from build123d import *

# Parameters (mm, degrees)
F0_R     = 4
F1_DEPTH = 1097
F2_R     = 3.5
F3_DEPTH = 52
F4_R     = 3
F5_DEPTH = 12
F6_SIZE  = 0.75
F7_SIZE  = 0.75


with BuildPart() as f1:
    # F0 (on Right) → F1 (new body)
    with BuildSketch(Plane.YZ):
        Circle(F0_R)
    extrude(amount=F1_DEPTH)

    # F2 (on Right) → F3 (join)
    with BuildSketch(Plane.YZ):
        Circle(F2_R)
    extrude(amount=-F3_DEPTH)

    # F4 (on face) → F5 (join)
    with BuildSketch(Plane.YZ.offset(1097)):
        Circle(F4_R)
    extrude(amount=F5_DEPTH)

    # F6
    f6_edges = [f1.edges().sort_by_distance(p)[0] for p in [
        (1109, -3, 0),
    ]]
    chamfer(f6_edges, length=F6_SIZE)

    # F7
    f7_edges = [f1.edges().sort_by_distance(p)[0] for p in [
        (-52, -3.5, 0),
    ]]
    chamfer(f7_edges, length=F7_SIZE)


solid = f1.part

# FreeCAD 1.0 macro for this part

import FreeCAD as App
import Part
import Sketcher

V = App.Vector
Q = App.Units.Quantity


def edges_at(feature, points):
    """Names of the edges that pass closest to the given points."""
    edges = feature.Shape.Edges
    near = lambda p: min(range(len(edges)), key=lambda i: edges[i].distToShape(Part.Vertex(*p))[0])
    return sorted({f"Edge{near(p) + 1}" for p in points})

doc = App.newDocument("Part")
params = doc.addObject("Spreadsheet::Sheet", "Params")
for row, (alias, value) in enumerate([
    ("sketch1_diameter", "8 mm"),
    ("pad1_length", "1097 mm"),
    ("sketch2_diameter", "7 mm"),
    ("pad2_length", "52 mm"),
    ("sketch3_diameter", "6 mm"),
    ("pad3_length", "12 mm"),
    ("chamfer_size", "0.75 mm"),
    ("chamfer2_size", "0.75 mm"),
], start=1):
    params.set(f"A{row}", alias)
    params.set(f"B{row}", "=" + value)
    params.setAlias(f"B{row}", alias)

body = doc.addObject("PartDesign::Body", "Body")

# Sketch on YZ plane
sketch1 = doc.addObject("Sketcher::SketchObject", "Sketch")
body.addObject(sketch1)
sketch1.AttachmentSupport = (doc.YZ_Plane, [""])
sketch1.MapMode = "FlatFace"
sketch1.addGeometry(Part.Circle(V(0, 0, 0), V(0, 0, 1), 4), False)
sketch1.addConstraint([
    Sketcher.Constraint("Coincident", 0, 3, -1, 1),
    Sketcher.Constraint("Diameter", 0, Q("8 mm")),
])
sketch1.setExpression("Constraints[1]", "Params.sketch1_diameter")
pad1 = doc.addObject("PartDesign::Pad", "Pad")
body.addObject(pad1)
pad1.Profile = sketch1
pad1.setExpression("Length", "Params.pad1_length")

# Sketch on YZ plane
sketch2 = doc.addObject("Sketcher::SketchObject", "Sketch001")
body.addObject(sketch2)
sketch2.AttachmentSupport = (doc.YZ_Plane, [""])
sketch2.MapMode = "FlatFace"
sketch2.addGeometry(Part.Circle(V(0, 0, 0), V(0, 0, 1), 3.5), False)
sketch2.addConstraint([
    Sketcher.Constraint("Coincident", 0, 3, -1, 1),
    Sketcher.Constraint("Diameter", 0, Q("7 mm")),
])
sketch2.setExpression("Constraints[1]", "Params.sketch2_diameter")
pad2 = doc.addObject("PartDesign::Pad", "Pad001")
body.addObject(pad2)
pad2.Profile = sketch2
pad2.setExpression("Length", "Params.pad2_length")
pad2.Reversed = True

# Sketch on YZ plane
sketch3 = doc.addObject("Sketcher::SketchObject", "Sketch002")
body.addObject(sketch3)
sketch3.AttachmentSupport = (doc.YZ_Plane, [""])
sketch3.MapMode = "FlatFace"
sketch3.AttachmentOffset = App.Placement(V(0, 0, 1097), App.Rotation())
sketch3.addGeometry(Part.Circle(V(0, 0, 0), V(0, 0, 1), 3), False)
sketch3.addConstraint([
    Sketcher.Constraint("Coincident", 0, 3, -1, 1),
    Sketcher.Constraint("Diameter", 0, Q("6 mm")),
])
sketch3.setExpression("Constraints[1]", "Params.sketch3_diameter")
pad3 = doc.addObject("PartDesign::Pad", "Pad002")
body.addObject(pad3)
pad3.Profile = sketch3
pad3.setExpression("Length", "Params.pad3_length")
doc.recompute()

chamfer = doc.addObject("PartDesign::Chamfer", "Chamfer")
body.addObject(chamfer)
chamfer.Base = (pad3, edges_at(pad3, [(1109, -3, 0)]))
chamfer.setExpression("Size", "Params.chamfer_size")
doc.recompute()

chamfer2 = doc.addObject("PartDesign::Chamfer", "Chamfer001")
body.addObject(chamfer2)
chamfer2.Base = (chamfer, edges_at(chamfer, [(-52, -3.5, 0)]))
chamfer2.setExpression("Size", "Params.chamfer2_size")

doc.recompute()
